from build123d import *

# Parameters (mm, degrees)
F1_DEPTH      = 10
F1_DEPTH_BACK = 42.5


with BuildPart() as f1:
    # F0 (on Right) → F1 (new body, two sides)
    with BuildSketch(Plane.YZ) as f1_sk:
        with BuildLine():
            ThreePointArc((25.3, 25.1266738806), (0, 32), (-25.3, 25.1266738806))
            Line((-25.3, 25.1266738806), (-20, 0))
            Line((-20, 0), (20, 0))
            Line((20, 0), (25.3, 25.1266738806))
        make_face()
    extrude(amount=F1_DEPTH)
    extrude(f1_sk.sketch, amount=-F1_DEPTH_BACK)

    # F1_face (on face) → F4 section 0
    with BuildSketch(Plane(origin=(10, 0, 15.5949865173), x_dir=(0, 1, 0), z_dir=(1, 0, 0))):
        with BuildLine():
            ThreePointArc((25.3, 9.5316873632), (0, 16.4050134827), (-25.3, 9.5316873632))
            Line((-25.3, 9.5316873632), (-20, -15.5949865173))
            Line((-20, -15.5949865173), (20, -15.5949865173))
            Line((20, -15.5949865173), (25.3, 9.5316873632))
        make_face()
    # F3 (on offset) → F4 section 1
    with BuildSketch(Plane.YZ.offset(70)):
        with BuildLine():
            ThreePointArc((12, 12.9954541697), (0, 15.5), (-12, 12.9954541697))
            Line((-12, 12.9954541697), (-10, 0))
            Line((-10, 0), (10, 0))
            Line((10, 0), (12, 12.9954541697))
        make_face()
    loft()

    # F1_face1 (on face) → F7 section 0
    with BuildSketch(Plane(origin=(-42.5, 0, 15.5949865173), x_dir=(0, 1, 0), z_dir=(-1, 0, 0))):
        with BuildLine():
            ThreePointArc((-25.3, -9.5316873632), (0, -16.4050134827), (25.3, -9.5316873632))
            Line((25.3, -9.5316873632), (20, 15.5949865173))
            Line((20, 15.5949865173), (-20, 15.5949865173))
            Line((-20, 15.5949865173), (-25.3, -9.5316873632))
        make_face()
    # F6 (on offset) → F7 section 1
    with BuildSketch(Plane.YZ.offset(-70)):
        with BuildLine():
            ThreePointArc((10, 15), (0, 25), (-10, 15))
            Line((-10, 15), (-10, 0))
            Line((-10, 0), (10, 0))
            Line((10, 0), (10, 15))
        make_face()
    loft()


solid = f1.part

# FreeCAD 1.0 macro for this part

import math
import FreeCAD as App
import Part
import Sketcher

V = App.Vector

doc = App.newDocument("Part")
body = doc.addObject("PartDesign::Body", "Body")

sketch1 = body.newObject("Sketcher::SketchObject", "Sketch")
sketch1.AttachmentSupport = (doc.getObject("YZ_Plane"), [""])
sketch1.MapMode = "FlatFace"
sketch1.addGeometry([
    Part.ArcOfCircle(Part.Circle(V(0, -18, 0), V(0, 0, 1), 50), math.radians(59.602243), math.radians(120.397757)),
    Part.LineSegment(V(-25.3, 25.126674, 0), V(-20, 0, 0)),
    Part.LineSegment(V(-20, 0, 0), V(20, 0, 0)),
    Part.LineSegment(V(20, 0, 0), V(25.3, 25.126674, 0)),
], False)
sketch1.addConstraint([
    Sketcher.Constraint("Coincident", 0, 2, 1, 1),
    Sketcher.Constraint("Coincident", 1, 2, 2, 1),
    Sketcher.Constraint("Coincident", 2, 2, 3, 1),
    Sketcher.Constraint("Coincident", 3, 2, 0, 1),
    Sketcher.Constraint("Horizontal", 2),
    Sketcher.Constraint("Symmetric", 1, 2, 2, 2, -1, 1),
    Sketcher.Constraint("Symmetric", 0, 2, 3, 2, -2),
    Sketcher.Constraint("Radius", 0, 50.0),
    Sketcher.Constraint("DistanceX", 2, 1, 2, 2, 40.0),
    Sketcher.Constraint("DistanceY", 0, 3, -1, 1, 18.0),
    Sketcher.Constraint("DistanceX", 0, 2, -1, 1, 25.3),
])
pad1 = body.newObject("PartDesign::Pad", "Pad")
pad1.Profile = sketch1
pad1.Type = "TwoLengths"
pad1.Length = 10
pad1.Length2 = 42.5

sketch2 = body.newObject("Sketcher::SketchObject", "Sketch001")
sketch2.AttachmentSupport = (doc.getObject("YZ_Plane"), [""])
sketch2.MapMode = "FlatFace"
sketch2.AttachmentOffset = App.Placement(V(0, 0, 10), App.Rotation())
sketch2.addGeometry([
    Part.ArcOfCircle(Part.Circle(V(0, -18, 0), V(0, 0, 1), 50), math.radians(59.602243), math.radians(120.397757)),
    Part.LineSegment(V(-25.3, 25.126674, 0), V(-20, 0, 0)),
    Part.LineSegment(V(-20, 0, 0), V(20, 0, 0)),
    Part.LineSegment(V(20, 0, 0), V(25.3, 25.126674, 0)),
], False)
sketch2.addConstraint([
    Sketcher.Constraint("Coincident", 0, 2, 1, 1),
    Sketcher.Constraint("Coincident", 1, 2, 2, 1),
    Sketcher.Constraint("Coincident", 2, 2, 3, 1),
    Sketcher.Constraint("Coincident", 3, 2, 0, 1),
    Sketcher.Constraint("Horizontal", 2),
    Sketcher.Constraint("Symmetric", 1, 2, 2, 2, -1, 1),
    Sketcher.Constraint("Symmetric", 0, 2, 3, 2, -2),
    Sketcher.Constraint("Radius", 0, 50.0),
    Sketcher.Constraint("DistanceX", 2, 1, 2, 2, 40.0),
    Sketcher.Constraint("DistanceY", 0, 3, -1, 1, 18.0),
    Sketcher.Constraint("DistanceX", 0, 2, -1, 1, 25.3),
])

sketch3 = body.newObject("Sketcher::SketchObject", "Sketch002")
sketch3.AttachmentSupport = (doc.getObject("YZ_Plane"), [""])
sketch3.MapMode = "FlatFace"
sketch3.AttachmentOffset = App.Placement(V(0, 0, 70), App.Rotation())
sketch3.addGeometry([
    Part.ArcOfCircle(Part.Circle(V(0, -14.5, 0), V(0, 0, 1), 30), math.radians(66.421822), math.radians(113.578178)),
    Part.LineSegment(V(-12, 12.995454, 0), V(-10, 0, 0)),
    Part.LineSegment(V(-10, 0, 0), V(10, 0, 0)),
    Part.LineSegment(V(10, 0, 0), V(12, 12.995454, 0)),
], False)
sketch3.addConstraint([
    Sketcher.Constraint("Coincident", 0, 2, 1, 1),
    Sketcher.Constraint("Coincident", 1, 2, 2, 1),
    Sketcher.Constraint("Coincident", 2, 2, 3, 1),
    Sketcher.Constraint("Coincident", 3, 2, 0, 1),
    Sketcher.Constraint("Horizontal", 2),
    Sketcher.Constraint("Symmetric", 1, 2, 2, 2, -1, 1),
    Sketcher.Constraint("Symmetric", 0, 2, 3, 2, -2),
    Sketcher.Constraint("Radius", 0, 30.0),
    Sketcher.Constraint("DistanceX", 2, 1, 2, 2, 20.0),
    Sketcher.Constraint("DistanceX", 0, 2, -1, 1, 12.0),
    Sketcher.Constraint("DistanceY", 0, 3, -1, 1, 14.5),
])

additiveloft = body.newObject("PartDesign::AdditiveLoft", "AdditiveLoft")
additiveloft.Profile = sketch2
additiveloft.Sections = [sketch3]

sketch4 = body.newObject("Sketcher::SketchObject", "Sketch003")
sketch4.AttachmentSupport = (doc.getObject("YZ_Plane"), [""])
sketch4.MapMode = "FlatFace"
sketch4.AttachmentOffset = App.Placement(V(0, 0, -42.5), App.Rotation())
sketch4.addGeometry([
    Part.ArcOfCircle(Part.Circle(V(0, -18, 0), V(0, 0, 1), 50), math.radians(59.602243), math.radians(120.397757)),
    Part.LineSegment(V(25.3, 25.126674, 0), V(20, 0, 0)),
    Part.LineSegment(V(20, 0, 0), V(-20, 0, 0)),
    Part.LineSegment(V(-20, 0, 0), V(-25.3, 25.126674, 0)),
], False)
sketch4.addConstraint([
    Sketcher.Constraint("Coincident", 0, 1, 1, 1),
    Sketcher.Constraint("Coincident", 1, 2, 2, 1),
    Sketcher.Constraint("Coincident", 2, 2, 3, 1),
    Sketcher.Constraint("Coincident", 3, 2, 0, 2),
    Sketcher.Constraint("Horizontal", 2),
    Sketcher.Constraint("Symmetric", 1, 2, 2, 2, -1, 1),
    Sketcher.Constraint("Symmetric", 0, 1, 3, 2, -2),
    Sketcher.Constraint("Radius", 0, 50.0),
    Sketcher.Constraint("DistanceX", 2, 2, 2, 1, 40.0),
    Sketcher.Constraint("DistanceY", 0, 3, -1, 1, 18.0),
    Sketcher.Constraint("DistanceX", -1, 1, 0, 1, 25.3),
])

sketch5 = body.newObject("Sketcher::SketchObject", "Sketch004")
sketch5.AttachmentSupport = (doc.getObject("YZ_Plane"), [""])
sketch5.MapMode = "FlatFace"
sketch5.AttachmentOffset = App.Placement(V(0, 0, -70), App.Rotation())
sketch5.addGeometry([
    Part.ArcOfCircle(Part.Circle(V(0, 15, 0), V(0, 0, 1), 10), math.radians(0), math.radians(180)),
    Part.LineSegment(V(-10, 15, 0), V(-10, 0, 0)),
    Part.LineSegment(V(-10, 0, 0), V(10, 0, 0)),
    Part.LineSegment(V(10, 0, 0), V(10, 15, 0)),
], False)
sketch5.addConstraint([
    Sketcher.Constraint("Tangent", 0, 2, 1, 1),
    Sketcher.Constraint("Coincident", 1, 2, 2, 1),
    Sketcher.Constraint("Coincident", 2, 2, 3, 1),
    Sketcher.Constraint("Tangent", 3, 2, 0, 1),
    Sketcher.Constraint("Vertical", 1),
    Sketcher.Constraint("Horizontal", 2),
    Sketcher.Constraint("Vertical", 3),
    Sketcher.Constraint("Symmetric", 1, 2, 2, 2, -1, 1),
    Sketcher.Constraint("Radius", 0, 10.0),
    Sketcher.Constraint("DistanceY", 1, 2, 1, 1, 15.0),
])

additiveloft2 = body.newObject("PartDesign::AdditiveLoft", "AdditiveLoft001")
additiveloft2.Profile = sketch4
additiveloft2.Sections = [sketch5]

doc.recompute()
